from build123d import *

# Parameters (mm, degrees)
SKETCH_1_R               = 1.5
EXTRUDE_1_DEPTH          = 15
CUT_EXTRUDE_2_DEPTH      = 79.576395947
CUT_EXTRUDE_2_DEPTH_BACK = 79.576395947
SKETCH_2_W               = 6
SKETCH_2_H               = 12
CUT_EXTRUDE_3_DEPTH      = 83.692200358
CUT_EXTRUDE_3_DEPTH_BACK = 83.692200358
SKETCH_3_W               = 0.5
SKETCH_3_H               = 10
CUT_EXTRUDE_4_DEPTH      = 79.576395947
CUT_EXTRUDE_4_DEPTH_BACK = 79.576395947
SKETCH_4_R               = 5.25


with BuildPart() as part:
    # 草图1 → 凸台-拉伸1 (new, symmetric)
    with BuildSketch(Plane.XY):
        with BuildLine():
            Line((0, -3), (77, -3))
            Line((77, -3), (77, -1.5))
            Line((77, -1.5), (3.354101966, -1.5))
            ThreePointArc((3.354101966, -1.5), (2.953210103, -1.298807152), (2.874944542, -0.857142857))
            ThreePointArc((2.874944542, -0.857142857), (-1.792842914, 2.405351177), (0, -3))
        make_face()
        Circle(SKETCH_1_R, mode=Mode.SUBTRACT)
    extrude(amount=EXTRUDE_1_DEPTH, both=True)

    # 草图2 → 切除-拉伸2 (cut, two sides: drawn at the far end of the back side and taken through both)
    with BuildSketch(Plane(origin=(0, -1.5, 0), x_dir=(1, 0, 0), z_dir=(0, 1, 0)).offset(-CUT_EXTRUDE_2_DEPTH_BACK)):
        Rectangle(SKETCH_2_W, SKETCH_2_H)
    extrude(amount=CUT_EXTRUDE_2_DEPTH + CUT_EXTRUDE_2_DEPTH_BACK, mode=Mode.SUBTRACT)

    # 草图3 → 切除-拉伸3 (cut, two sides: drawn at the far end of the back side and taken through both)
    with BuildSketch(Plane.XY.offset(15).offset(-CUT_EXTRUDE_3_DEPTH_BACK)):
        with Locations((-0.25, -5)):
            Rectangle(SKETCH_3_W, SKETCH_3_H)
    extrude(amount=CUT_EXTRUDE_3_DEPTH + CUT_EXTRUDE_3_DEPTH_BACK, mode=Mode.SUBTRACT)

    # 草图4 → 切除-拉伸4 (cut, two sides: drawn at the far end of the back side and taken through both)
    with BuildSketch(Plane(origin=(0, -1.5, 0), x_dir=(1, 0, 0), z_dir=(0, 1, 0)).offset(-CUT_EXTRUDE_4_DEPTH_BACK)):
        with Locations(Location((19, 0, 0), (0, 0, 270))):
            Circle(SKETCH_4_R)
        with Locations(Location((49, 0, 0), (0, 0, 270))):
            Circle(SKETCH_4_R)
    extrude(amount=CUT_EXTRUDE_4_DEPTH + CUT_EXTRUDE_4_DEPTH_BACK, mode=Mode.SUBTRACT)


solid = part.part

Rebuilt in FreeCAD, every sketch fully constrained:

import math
import FreeCAD as App
import Part
import Sketcher

doc = App.newDocument("Part")
params = doc.addObject("Spreadsheet::Sheet", "Params")
for row, (alias, value) in enumerate([
    ("sketch1_diameter", "3 mm"),
    ("sketch1_radius", "3 mm"),
    ("sketch1_radius2", "0.5 mm"),
    ("sketch1_width", "77 mm"),
    ("sketch1_height", "1.5 mm"),
    ("pad1_length", "30 mm"),
    ("sketch2_width", "6 mm"),
    ("sketch2_height", "12 mm"),
    ("sketch3_height", "10 mm"),
    ("sketch3_width", "0.5 mm"),
    ("sketch4_diameter", "10.5 mm"),
], start=1):
    params.set(f"A{row}", alias)
    params.set(f"B{row}", "=" + value)
    params.setAlias(f"B{row}", alias)

body = doc.addObject("PartDesign::Body", "Body")

sketch1 = doc.addObject("Sketcher::SketchObject", "Sketch")
body.addObject(sketch1)
sketch1.AttachmentSupport = (doc.XY_Plane, [""])
sketch1.MapMode = "FlatFace"
sketch1.addGeometry(Part.LineSegment(App.Vector(0, -3, 0), App.Vector(77, -3, 0)), False)
sketch1.addGeometry(Part.LineSegment(App.Vector(77, -3, 0), App.Vector(77, -1.5, 0)), False)
sketch1.addGeometry(Part.LineSegment(App.Vector(77, -1.5, 0), App.Vector(3.354102, -1.5, 0)), False)
sketch1.addGeometry(Part.ArcOfCircle(Part.Circle(App.Vector(3.354102, -1, 0), App.Vector(0, 0, 1), 0.5), math.radians(163.39845), math.radians(270)), False)
sketch1.addGeometry(Part.ArcOfCircle(Part.Circle(App.Vector(0, 0, 0), App.Vector(0, 0, 1), 3), math.radians(-16.60155), math.radians(270)), False)
sketch1.addGeometry(Part.Circle(App.Vector(0, 0, 0), App.Vector(0, 0, 1), 1.5), False)
sketch1.addConstraint(Sketcher.Constraint("Coincident", 0, 2, 1, 1))
sketch1.addConstraint(Sketcher.Constraint("Coincident", 1, 2, 2, 1))
sketch1.addConstraint(Sketcher.Constraint("Tangent", 2, 2, 3, 2))
sketch1.addConstraint(Sketcher.Constraint("Tangent", 3, 1, 4, 1))
sketch1.addConstraint(Sketcher.Constraint("Tangent", 4, 2, 0, 1))
sketch1.addConstraint(Sketcher.Constraint("Horizontal", 0))
sketch1.addConstraint(Sketcher.Constraint("Vertical", 1))
sketch1.addConstraint(Sketcher.Constraint("Horizontal", 2))
sketch1.addConstraint(Sketcher.Constraint("Coincident", 4, 3, -1, 1))
sketch1.addConstraint(Sketcher.Constraint("Coincident", 5, 3, -1, 1))
sketch1.addConstraint(Sketcher.Constraint("Diameter", 5, 3.0))
sketch1.addConstraint(Sketcher.Constraint("Radius", 4, 3.0))
sketch1.addConstraint(Sketcher.Constraint("Radius", 3, 0.5))
sketch1.addConstraint(Sketcher.Constraint("DistanceX", 0, 1, 0, 2, 77.0))
sketch1.addConstraint(Sketcher.Constraint("DistanceY", 1, 1, 1, 2, 1.5))
sketch1.setExpression("Constraints[10]", "Params.sketch1_diameter")
sketch1.setExpression("Constraints[11]", "Params.sketch1_radius")
sketch1.setExpression("Constraints[12]", "Params.sketch1_radius2")
sketch1.setExpression("Constraints[13]", "Params.sketch1_width")
sketch1.setExpression("Constraints[14]", "Params.sketch1_height")
pad1 = doc.addObject("PartDesign::Pad", "Pad")
body.addObject(pad1)
pad1.Profile = sketch1
pad1.setExpression("Length", "Params.pad1_length")
pad1.Midplane = True

sketch2 = doc.addObject("Sketcher::SketchObject", "Sketch001")
body.addObject(sketch2)
sketch2.AttachmentSupport = (doc.XZ_Plane, [""])
sketch2.MapMode = "FlatFace"
sketch2.AttachmentOffset = App.Placement(App.Vector(0, 0, 1.5), App.Rotation())
sketch2.addGeometry(Part.LineSegment(App.Vector(-3, -6, 0), App.Vector(-3, 6, 0)), False)
sketch2.addGeometry(Part.LineSegment(App.Vector(-3, 6, 0), App.Vector(3, 6, 0)), False)
sketch2.addGeometry(Part.LineSegment(App.Vector(3, 6, 0), App.Vector(3, -6, 0)), False)
sketch2.addGeometry(Part.LineSegment(App.Vector(3, -6, 0), App.Vector(-3, -6, 0)), False)
sketch2.addConstraint(Sketcher.Constraint("Coincident", 0, 2, 1, 1))
sketch2.addConstraint(Sketcher.Constraint("Coincident", 1, 2, 2, 1))
sketch2.addConstraint(Sketcher.Constraint("Coincident", 2, 2, 3, 1))
sketch2.addConstraint(Sketcher.Constraint("Coincident", 3, 2, 0, 1))
sketch2.addConstraint(Sketcher.Constraint("Vertical", 0))
sketch2.addConstraint(Sketcher.Constraint("Horizontal", 1))
sketch2.addConstraint(Sketcher.Constraint("Vertical", 2))
sketch2.addConstraint(Sketcher.Constraint("Horizontal", 3))
sketch2.addConstraint(Sketcher.Constraint("Symmetric", 0, 2, 2, 2, -1, 1))
sketch2.addConstraint(Sketcher.Constraint("DistanceX", 1, 1, 1, 2, 6.0))
sketch2.addConstraint(Sketcher.Constraint("DistanceY", 0, 1, 0, 2, 12.0))
sketch2.setExpression("Constraints[9]", "Params.sketch2_width")
sketch2.setExpression("Constraints[10]", "Params.sketch2_height")
pocket1 = doc.addObject("PartDesign::Pocket", "Pocket")
body.addObject(pocket1)
pocket1.Profile = sketch2
pocket1.Type = "ThroughAll"
pocket1.Midplane = True

sketch3 = doc.addObject("Sketcher::SketchObject", "Sketch002")
body.addObject(sketch3)
sketch3.AttachmentSupport = (doc.XY_Plane, [""])
sketch3.MapMode = "FlatFace"
sketch3.AttachmentOffset = App.Placement(App.Vector(0, 0, 15), App.Rotation())
sketch3.addGeometry(Part.LineSegment(App.Vector(-0.5, 0, 0), App.Vector(-0.5, -10, 0)), False)
sketch3.addGeometry(Part.LineSegment(App.Vector(-0.5, -10, 0), App.Vector(0, -10, 0)), False)
sketch3.addGeometry(Part.LineSegment(App.Vector(0, -10, 0), App.Vector(0, 0, 0)), False)
sketch3.addGeometry(Part.LineSegment(App.Vector(0, 0, 0), App.Vector(-0.5, 0, 0)), False)
sketch3.addConstraint(Sketcher.Constraint("Coincident", 0, 2, 1, 1))
sketch3.addConstraint(Sketcher.Constraint("Coincident", 1, 2, 2, 1))
sketch3.addConstraint(Sketcher.Constraint("Coincident", 2, 2, 3, 1))
sketch3.addConstraint(Sketcher.Constraint("Coincident", 3, 2, 0, 1))
sketch3.addConstraint(Sketcher.Constraint("Vertical", 0))
sketch3.addConstraint(Sketcher.Constraint("Horizontal", 1))
sketch3.addConstraint(Sketcher.Constraint("Vertical", 2))
sketch3.addConstraint(Sketcher.Constraint("Horizontal", 3))
sketch3.addConstraint(Sketcher.Constraint("Coincident", 2, 2, -1, 1))
sketch3.addConstraint(Sketcher.Constraint("DistanceY", 0, 2, 0, 1, 10.0))
sketch3.addConstraint(Sketcher.Constraint("DistanceX", 1, 1, 1, 2, 0.5))
sketch3.setExpression("Constraints[9]", "Params.sketch3_height")
sketch3.setExpression("Constraints[10]", "Params.sketch3_width")
pocket2 = doc.addObject("PartDesign::Pocket", "Pocket001")
body.addObject(pocket2)
pocket2.Profile = sketch3
pocket2.Type = "ThroughAll"
pocket2.Midplane = True

sketch4 = doc.addObject("Sketcher::SketchObject", "Sketch003")
body.addObject(sketch4)
sketch4.AttachmentSupport = (doc.XZ_Plane, [""])
sketch4.MapMode = "FlatFace"
sketch4.AttachmentOffset = App.Placement(App.Vector(0, 0, 1.5), App.Rotation())
sketch4.addGeometry(Part.Circle(App.Vector(19, 0, 0), App.Vector(0, 0, 1), 5.25), False)
sketch4.addGeometry(Part.Circle(App.Vector(49, 0, 0), App.Vector(0, 0, 1), 5.25), False)
sketch4.addConstraint(Sketcher.Constraint("Equal", 0, 1))
sketch4.addConstraint(Sketcher.Constraint("PointOnObject", 0, 3, -1))
sketch4.addConstraint(Sketcher.Constraint("PointOnObject", 1, 3, -1))
sketch4.addConstraint(Sketcher.Constraint("Diameter", 0, 10.5))
sketch4.addConstraint(Sketcher.Constraint("DistanceX", -1, 1, 0, 3, 19.0))
sketch4.addConstraint(Sketcher.Constraint("DistanceX", -1, 1, 1, 3, 49.0))
sketch4.setExpression("Constraints[3]", "Params.sketch4_diameter")
pocket3 = doc.addObject("PartDesign::Pocket", "Pocket002")
body.addObject(pocket3)
pocket3.Profile = sketch4
pocket3.Type = "ThroughAll"
pocket3.Midplane = True

doc.recompute()
